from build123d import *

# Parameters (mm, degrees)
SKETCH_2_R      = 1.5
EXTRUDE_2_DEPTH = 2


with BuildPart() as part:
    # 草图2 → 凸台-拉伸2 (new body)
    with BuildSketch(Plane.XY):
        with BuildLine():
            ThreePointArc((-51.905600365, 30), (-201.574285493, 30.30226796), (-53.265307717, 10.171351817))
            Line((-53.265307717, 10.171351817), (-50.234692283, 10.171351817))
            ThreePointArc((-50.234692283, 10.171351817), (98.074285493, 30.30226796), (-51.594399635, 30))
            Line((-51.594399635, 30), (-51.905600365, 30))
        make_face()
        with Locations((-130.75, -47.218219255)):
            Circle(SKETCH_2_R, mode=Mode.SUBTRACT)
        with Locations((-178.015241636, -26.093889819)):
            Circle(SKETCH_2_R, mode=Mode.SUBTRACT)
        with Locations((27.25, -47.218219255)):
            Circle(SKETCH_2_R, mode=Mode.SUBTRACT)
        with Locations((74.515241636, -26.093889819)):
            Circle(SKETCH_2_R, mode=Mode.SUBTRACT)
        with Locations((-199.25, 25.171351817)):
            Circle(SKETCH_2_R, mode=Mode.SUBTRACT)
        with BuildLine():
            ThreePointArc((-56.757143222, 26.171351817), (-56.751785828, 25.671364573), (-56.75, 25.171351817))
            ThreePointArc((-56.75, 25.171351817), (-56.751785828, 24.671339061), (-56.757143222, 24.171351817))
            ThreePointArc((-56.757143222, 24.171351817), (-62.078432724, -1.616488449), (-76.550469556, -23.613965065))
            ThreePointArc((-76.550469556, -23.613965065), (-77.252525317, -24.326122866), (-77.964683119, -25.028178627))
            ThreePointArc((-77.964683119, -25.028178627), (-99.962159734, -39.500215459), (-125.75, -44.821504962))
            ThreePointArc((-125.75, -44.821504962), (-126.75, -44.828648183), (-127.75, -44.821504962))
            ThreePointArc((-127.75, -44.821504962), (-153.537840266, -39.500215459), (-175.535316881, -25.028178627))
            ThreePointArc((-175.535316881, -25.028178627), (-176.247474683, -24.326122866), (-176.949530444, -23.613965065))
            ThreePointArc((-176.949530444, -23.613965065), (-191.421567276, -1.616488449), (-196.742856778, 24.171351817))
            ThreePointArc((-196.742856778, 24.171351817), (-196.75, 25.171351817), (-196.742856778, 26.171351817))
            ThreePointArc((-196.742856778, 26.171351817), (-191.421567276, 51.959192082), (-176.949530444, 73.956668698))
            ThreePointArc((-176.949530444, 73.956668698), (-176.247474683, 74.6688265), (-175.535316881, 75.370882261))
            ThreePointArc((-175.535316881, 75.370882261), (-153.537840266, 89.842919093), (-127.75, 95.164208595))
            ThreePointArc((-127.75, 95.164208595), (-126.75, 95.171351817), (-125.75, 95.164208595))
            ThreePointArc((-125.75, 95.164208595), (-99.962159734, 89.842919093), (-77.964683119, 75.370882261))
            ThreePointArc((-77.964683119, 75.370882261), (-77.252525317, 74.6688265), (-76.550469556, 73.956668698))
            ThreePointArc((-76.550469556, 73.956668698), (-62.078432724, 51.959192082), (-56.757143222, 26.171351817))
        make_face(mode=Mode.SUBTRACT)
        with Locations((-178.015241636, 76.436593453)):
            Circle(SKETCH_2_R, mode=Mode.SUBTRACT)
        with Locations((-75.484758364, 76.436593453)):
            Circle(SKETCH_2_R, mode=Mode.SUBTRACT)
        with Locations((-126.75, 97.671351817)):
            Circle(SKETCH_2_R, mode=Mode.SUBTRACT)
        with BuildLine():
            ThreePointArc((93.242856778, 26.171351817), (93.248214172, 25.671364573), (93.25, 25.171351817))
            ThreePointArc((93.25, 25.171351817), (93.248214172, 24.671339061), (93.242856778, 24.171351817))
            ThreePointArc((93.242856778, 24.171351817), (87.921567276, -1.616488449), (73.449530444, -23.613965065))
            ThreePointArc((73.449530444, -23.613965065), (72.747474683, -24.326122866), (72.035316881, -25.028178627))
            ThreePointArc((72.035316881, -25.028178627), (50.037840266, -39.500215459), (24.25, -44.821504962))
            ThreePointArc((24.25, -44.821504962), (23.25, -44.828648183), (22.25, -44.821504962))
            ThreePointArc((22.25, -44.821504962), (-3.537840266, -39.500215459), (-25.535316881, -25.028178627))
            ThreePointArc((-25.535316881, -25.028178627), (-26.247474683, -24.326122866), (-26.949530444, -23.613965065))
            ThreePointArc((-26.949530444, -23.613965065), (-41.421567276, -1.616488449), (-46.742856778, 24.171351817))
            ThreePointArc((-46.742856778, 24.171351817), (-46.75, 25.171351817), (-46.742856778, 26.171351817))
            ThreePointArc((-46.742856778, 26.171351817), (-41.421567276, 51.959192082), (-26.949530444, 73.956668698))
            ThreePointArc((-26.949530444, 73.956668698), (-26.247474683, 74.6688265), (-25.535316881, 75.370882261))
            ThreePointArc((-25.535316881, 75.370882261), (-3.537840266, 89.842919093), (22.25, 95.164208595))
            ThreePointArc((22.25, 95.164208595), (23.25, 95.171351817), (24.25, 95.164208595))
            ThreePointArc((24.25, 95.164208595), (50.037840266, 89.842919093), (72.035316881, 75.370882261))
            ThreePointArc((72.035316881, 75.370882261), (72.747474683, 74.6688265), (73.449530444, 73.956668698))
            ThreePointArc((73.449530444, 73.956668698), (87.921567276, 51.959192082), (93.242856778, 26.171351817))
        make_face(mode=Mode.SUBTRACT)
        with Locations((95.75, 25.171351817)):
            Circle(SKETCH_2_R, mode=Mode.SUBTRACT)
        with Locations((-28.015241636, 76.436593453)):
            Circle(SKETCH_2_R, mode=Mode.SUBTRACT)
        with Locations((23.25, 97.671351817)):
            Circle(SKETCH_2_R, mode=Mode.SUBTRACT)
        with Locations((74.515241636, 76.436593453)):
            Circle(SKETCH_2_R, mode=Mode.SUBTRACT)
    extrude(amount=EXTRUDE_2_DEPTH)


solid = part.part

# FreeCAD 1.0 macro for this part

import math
import FreeCAD as App
import Part
import Sketcher
from FreeCAD import Vector
Q = App.Units.Quantity

doc = App.newDocument("Part")
body = doc.addObject("PartDesign::Body", "Body")

# Sketch on XY plane
sketch1 = doc.addObject("Sketcher::SketchObject", "Sketch")
body.addObject(sketch1)
sketch1.AttachmentSupport = (doc.XY_Plane, [""])
sketch1.MapMode = "FlatFace"
sketch1.addGeometry([
    Part.ArcOfCircle(Part.Circle(Vector(-126.75, 25.17, 0), Vector(0, 0, 1), 75), math.radians(4), math.radians(348)),  # 0
    Part.LineSegment(Vector(-53.27, 10.17, 0), Vector(-50.23, 10.17, 0)),  # 1
    Part.ArcOfCircle(Part.Circle(Vector(23.25, 25.17, 0), Vector(0, 0, 1), 75), math.radians(-168), math.radians(176)),  # 2
    Part.LineSegment(Vector(-51.59, 30, 0), Vector(-51.91, 30, 0)),  # 3
    Part.Circle(Vector(-130.75, -47.22, 0), Vector(0, 0, 1), 1.5),  # 4
    Part.Circle(Vector(-178.02, -26.09, 0), Vector(0, 0, 1), 1.5),  # 5
    Part.Circle(Vector(-199.25, 25.17, 0), Vector(0, 0, 1), 1.5),  # 6
    Part.ArcOfCircle(Part.Circle(Vector(-126.75, 25.17, 0), Vector(0, 0, 1), 70), math.radians(1), math.radians(44)),  # 7
    Part.ArcOfCircle(Part.Circle(Vector(-126.75, 25.17, 0), Vector(0, 0, 1), 70), math.radians(0), math.radians(0.82)),  # 8
    Part.ArcOfCircle(Part.Circle(Vector(-126.75, 25.17, 0), Vector(0, 0, 1), 70), math.radians(-0.82), math.radians(0)),  # 9
    Part.ArcOfCircle(Part.Circle(Vector(-126.75, 25.17, 0), Vector(0, 0, 1), 70), math.radians(-44), math.radians(-1)),  # 10
    Part.ArcOfCircle(Part.Circle(Vector(-126.75, 25.17, 0), Vector(0, 0, 1), 70), math.radians(-45.82), math.radians(-44.18)),  # 11
    Part.ArcOfCircle(Part.Circle(Vector(-126.75, 25.17, 0), Vector(0, 0, 1), 70), math.radians(-89), math.radians(-46)),  # 12
    Part.ArcOfCircle(Part.Circle(Vector(-126.75, 25.17, 0), Vector(0, 0, 1), 70), math.radians(-90.82), math.radians(-89.18)),  # 13
    Part.ArcOfCircle(Part.Circle(Vector(-126.75, 25.17, 0), Vector(0, 0, 1), 70), math.radians(-134), math.radians(-91)),  # 14
    Part.ArcOfCircle(Part.Circle(Vector(-126.75, 25.17, 0), Vector(0, 0, 1), 70), math.radians(-135.82), math.radians(-134.18)),  # 15
    Part.ArcOfCircle(Part.Circle(Vector(-126.75, 25.17, 0), Vector(0, 0, 1), 70), math.radians(-179), math.radians(-136)),  # 16
    Part.ArcOfCircle(Part.Circle(Vector(-126.75, 25.17, 0), Vector(0, 0, 1), 70), math.radians(179.18), math.radians(180.82)),  # 17
    Part.ArcOfCircle(Part.Circle(Vector(-126.75, 25.17, 0), Vector(0, 0, 1), 70), math.radians(136), math.radians(179)),  # 18
    Part.ArcOfCircle(Part.Circle(Vector(-126.75, 25.17, 0), Vector(0, 0, 1), 70), math.radians(134.18), math.radians(135.82)),  # 19
    Part.ArcOfCircle(Part.Circle(Vector(-126.75, 25.17, 0), Vector(0, 0, 1), 70), math.radians(91), math.radians(134)),  # 20
    Part.ArcOfCircle(Part.Circle(Vector(-126.75, 25.17, 0), Vector(0, 0, 1), 70), math.radians(89.18), math.radians(90.82)),  # 21
    Part.ArcOfCircle(Part.Circle(Vector(-126.75, 25.17, 0), Vector(0, 0, 1), 70), math.radians(46), math.radians(89)),  # 22
    Part.ArcOfCircle(Part.Circle(Vector(-126.75, 25.17, 0), Vector(0, 0, 1), 70), math.radians(44.18), math.radians(45.82)),  # 23
    Part.Circle(Vector(27.25, -47.22, 0), Vector(0, 0, 1), 1.5),  # 24
    Part.Circle(Vector(74.52, -26.09, 0), Vector(0, 0, 1), 1.5),  # 25
    Part.ArcOfCircle(Part.Circle(Vector(23.25, 25.17, 0), Vector(0, 0, 1), 70), math.radians(1), math.radians(44)),  # 26
    Part.ArcOfCircle(Part.Circle(Vector(23.25, 25.17, 0), Vector(0, 0, 1), 70), math.radians(0), math.radians(0.82)),  # 27
    Part.ArcOfCircle(Part.Circle(Vector(23.25, 25.17, 0), Vector(0, 0, 1), 70), math.radians(-0.82), math.radians(0)),  # 28
    Part.ArcOfCircle(Part.Circle(Vector(23.25, 25.17, 0), Vector(0, 0, 1), 70), math.radians(-44), math.radians(-1)),  # 29
    Part.ArcOfCircle(Part.Circle(Vector(23.25, 25.17, 0), Vector(0, 0, 1), 70), math.radians(-45.82), math.radians(-44.18)),  # 30
    Part.ArcOfCircle(Part.Circle(Vector(23.25, 25.17, 0), Vector(0, 0, 1), 70), math.radians(-89), math.radians(-46)),  # 31
    Part.ArcOfCircle(Part.Circle(Vector(23.25, 25.17, 0), Vector(0, 0, 1), 70), math.radians(-90.82), math.radians(-89.18)),  # 32
    Part.ArcOfCircle(Part.Circle(Vector(23.25, 25.17, 0), Vector(0, 0, 1), 70), math.radians(-134), math.radians(-91)),  # 33
    Part.ArcOfCircle(Part.Circle(Vector(23.25, 25.17, 0), Vector(0, 0, 1), 70), math.radians(-135.82), math.radians(-134.18)),  # 34
    Part.ArcOfCircle(Part.Circle(Vector(23.25, 25.17, 0), Vector(0, 0, 1), 70), math.radians(-179), math.radians(-136)),  # 35
    Part.ArcOfCircle(Part.Circle(Vector(23.25, 25.17, 0), Vector(0, 0, 1), 70), math.radians(179.18), math.radians(180.82)),  # 36
    Part.ArcOfCircle(Part.Circle(Vector(23.25, 25.17, 0), Vector(0, 0, 1), 70), math.radians(136), math.radians(179)),  # 37
    Part.ArcOfCircle(Part.Circle(Vector(23.25, 25.17, 0), Vector(0, 0, 1), 70), math.radians(134.18), math.radians(135.82)),  # 38
    Part.ArcOfCircle(Part.Circle(Vector(23.25, 25.17, 0), Vector(0, 0, 1), 70), math.radians(91), math.radians(134)),  # 39
    Part.ArcOfCircle(Part.Circle(Vector(23.25, 25.17, 0), Vector(0, 0, 1), 70), math.radians(89.18), math.radians(90.82)),  # 40
    Part.ArcOfCircle(Part.Circle(Vector(23.25, 25.17, 0), Vector(0, 0, 1), 70), math.radians(46), math.radians(89)),  # 41
    Part.ArcOfCircle(Part.Circle(Vector(23.25, 25.17, 0), Vector(0, 0, 1), 70), math.radians(44.18), math.radians(45.82)),  # 42
    Part.Circle(Vector(95.75, 25.17, 0), Vector(0, 0, 1), 1.5),  # 43
    Part.Circle(Vector(-178.02, 76.44, 0), Vector(0, 0, 1), 1.5),  # 44
    Part.Circle(Vector(-126.75, 97.67, 0), Vector(0, 0, 1), 1.5),  # 45
    Part.Circle(Vector(-75.48, 76.44, 0), Vector(0, 0, 1), 1.5),  # 46
    Part.Circle(Vector(-28.02, 76.44, 0), Vector(0, 0, 1), 1.5),  # 47
    Part.Circle(Vector(74.52, 76.44, 0), Vector(0, 0, 1), 1.5),  # 48
    Part.Circle(Vector(23.25, 97.67, 0), Vector(0, 0, 1), 1.5),  # 49
], False)
sketch1.addConstraint([
    Sketcher.Constraint("Coincident", 0, 2, 1, 1),
    Sketcher.Constraint("Coincident", 1, 2, 2, 1),
    Sketcher.Constraint("Coincident", 2, 2, 3, 1),
    Sketcher.Constraint("Coincident", 3, 2, 0, 1),
    Sketcher.Constraint("Tangent", 7, 1, 8, 2),
    Sketcher.Constraint("Tangent", 8, 1, 9, 2),
    Sketcher.Constraint("Tangent", 9, 1, 10, 2),
    Sketcher.Constraint("Tangent", 10, 1, 11, 2),
    Sketcher.Constraint("Tangent", 11, 1, 12, 2),
    Sketcher.Constraint("Tangent", 12, 1, 13, 2),
    Sketcher.Constraint("Tangent", 13, 1, 14, 2),
    Sketcher.Constraint("Tangent", 14, 1, 15, 2),
    Sketcher.Constraint("Tangent", 15, 1, 16, 2),
    Sketcher.Constraint("Tangent", 16, 1, 17, 2),
    Sketcher.Constraint("Tangent", 17, 1, 18, 2),
    Sketcher.Constraint("Tangent", 18, 1, 19, 2),
    Sketcher.Constraint("Tangent", 19, 1, 20, 2),
    Sketcher.Constraint("Tangent", 20, 1, 21, 2),
    Sketcher.Constraint("Tangent", 21, 1, 22, 2),
    Sketcher.Constraint("Tangent", 22, 1, 23, 2),
    Sketcher.Constraint("Tangent", 23, 1, 7, 2),
    Sketcher.Constraint("Tangent", 26, 1, 27, 2),
    Sketcher.Constraint("Tangent", 27, 1, 28, 2),
    Sketcher.Constraint("Tangent", 28, 1, 29, 2),
    Sketcher.Constraint("Tangent", 29, 1, 30, 2),
    Sketcher.Constraint("Tangent", 30, 1, 31, 2),
    Sketcher.Constraint("Tangent", 31, 1, 32, 2),
    Sketcher.Constraint("Tangent", 32, 1, 33, 2),
    Sketcher.Constraint("Tangent", 33, 1, 34, 2),
    Sketcher.Constraint("Tangent", 34, 1, 35, 2),
    Sketcher.Constraint("Tangent", 35, 1, 36, 2),
    Sketcher.Constraint("Tangent", 36, 1, 37, 2),
    Sketcher.Constraint("Tangent", 37, 1, 38, 2),
    Sketcher.Constraint("Tangent", 38, 1, 39, 2),
    Sketcher.Constraint("Tangent", 39, 1, 40, 2),
    Sketcher.Constraint("Tangent", 40, 1, 41, 2),
    Sketcher.Constraint("Tangent", 41, 1, 42, 2),
    Sketcher.Constraint("Tangent", 42, 1, 26, 2),
    Sketcher.Constraint("Horizontal", 1),
    Sketcher.Constraint("Horizontal", 3),
    Sketcher.Constraint("Coincident", 7, 3, 0, 3),
    Sketcher.Constraint("Coincident", 10, 3, 0, 3),
    Sketcher.Constraint("Coincident", 12, 3, 0, 3),
    Sketcher.Constraint("Coincident", 14, 3, 0, 3),
    Sketcher.Constraint("Coincident", 16, 3, 0, 3),
    Sketcher.Constraint("Coincident", 18, 3, 0, 3),
    Sketcher.Constraint("Coincident", 20, 3, 0, 3),
    Sketcher.Constraint("Coincident", 26, 3, 2, 3),
    Sketcher.Constraint("Coincident", 29, 3, 2, 3),
    Sketcher.Constraint("Coincident", 31, 3, 2, 3),
    Sketcher.Constraint("Coincident", 33, 3, 2, 3),
    Sketcher.Constraint("Coincident", 35, 3, 2, 3),
    Sketcher.Constraint("Coincident", 37, 3, 2, 3),
    Sketcher.Constraint("Coincident", 39, 3, 2, 3),
    Sketcher.Constraint("Equal", 0, 2),
    Sketcher.Constraint("Equal", 4, 5),
    Sketcher.Constraint("Equal", 5, 6),
    Sketcher.Constraint("Equal", 8, 9),
    Sketcher.Constraint("Equal", 17, 21),
    Sketcher.Constraint("Equal", 6, 24),
    Sketcher.Constraint("Equal", 24, 25),
    Sketcher.Constraint("Equal", 23, 26),
    Sketcher.Constraint("Equal", 9, 27),
    Sketcher.Constraint("Equal", 36, 40),
    Sketcher.Constraint("Equal", 25, 43),
    Sketcher.Constraint("Equal", 43, 44),
    Sketcher.Constraint("Equal", 44, 45),
    Sketcher.Constraint("Equal", 45, 46),
    Sketcher.Constraint("Equal", 46, 47),
    Sketcher.Constraint("Equal", 47, 48),
    Sketcher.Constraint("Equal", 48, 49),
    Sketcher.Constraint("Horizontal", 0, 3, 2, 3),
    Sketcher.Constraint("Horizontal", 2, 3, 6, 3),
    Sketcher.Constraint("Horizontal", 4, 3, 24, 3),
    Sketcher.Constraint("Horizontal", 5, 3, 25, 3),
    Sketcher.Constraint("Horizontal", 42, 3, 43, 3),
    Sketcher.Constraint("Horizontal", 44, 3, 46, 3),
    Sketcher.Constraint("Horizontal", 46, 3, 47, 3),
    Sketcher.Constraint("Horizontal", 47, 3, 48, 3),
    Sketcher.Constraint("Horizontal", 45, 3, 49, 3),
    Sketcher.Constraint("Horizontal", 43, 3, 8, 1),
    Sketcher.Constraint("Horizontal", 12, 1, 13, 1),
    Sketcher.Constraint("Horizontal", 11, 1, 14, 1),
    Sketcher.Constraint("Horizontal", 10, 1, 15, 1),
    Sketcher.Constraint("Horizontal", 9, 1, 16, 1),
    Sketcher.Constraint("Horizontal", 7, 1, 17, 1),
    Sketcher.Constraint("Horizontal", 20, 1, 21, 1),
    Sketcher.Constraint("Horizontal", 19, 1, 22, 1),
    Sketcher.Constraint("Horizontal", 18, 1, 23, 1),
    Sketcher.Constraint("Horizontal", 17, 1, 26, 1),
    Sketcher.Constraint("Horizontal", 8, 1, 27, 1),
    Sketcher.Constraint("Horizontal", 16, 1, 28, 1),
    Sketcher.Constraint("Horizontal", 15, 1, 29, 1),
    Sketcher.Constraint("Horizontal", 14, 1, 30, 1),
    Sketcher.Constraint("Horizontal", 13, 1, 31, 1),
    Sketcher.Constraint("Horizontal", 31, 1, 32, 1),
    Sketcher.Constraint("Horizontal", 30, 1, 33, 1),
    Sketcher.Constraint("Horizontal", 29, 1, 34, 1),
    Sketcher.Constraint("Horizontal", 28, 1, 35, 1),
    Sketcher.Constraint("Horizontal", 26, 1, 36, 1),
    Sketcher.Constraint("Horizontal", 23, 1, 37, 1),
    Sketcher.Constraint("Horizontal", 22, 1, 38, 1),
    Sketcher.Constraint("Horizontal", 21, 1, 39, 1),
    Sketcher.Constraint("Horizontal", 39, 1, 40, 1),
    Sketcher.Constraint("Horizontal", 38, 1, 41, 1),
    Sketcher.Constraint("Horizontal", 37, 1, 42, 1),
    Sketcher.Constraint("Vertical", 5, 3, 44, 3),
    Sketcher.Constraint("Vertical", 23, 3, 45, 3),
    Sketcher.Constraint("Vertical", 25, 3, 48, 3),
    Sketcher.Constraint("Vertical", 42, 3, 49, 3),
    Sketcher.Constraint("Vertical", 7, 1, 9, 1),
    Sketcher.Constraint("Vertical", 15, 1, 18, 1),
    Sketcher.Constraint("Vertical", 14, 1, 19, 1),
    Sketcher.Constraint("Vertical", 13, 1, 20, 1),
    Sketcher.Constraint("Diameter", 4, Q("3 mm")),
    Sketcher.Constraint("Radius", 0, Q("75 mm")),
    Sketcher.Constraint("Radius", 7, Q("70 mm")),
    Sketcher.Constraint("DistanceY", -1, 1, 2, 2, Q("30 mm")),
    Sketcher.Constraint("DistanceX", 0, 3, -1, 1, Q("126.75 mm")),
    Sketcher.Constraint("DistanceX", -1, 1, 2, 3, Q("23.25 mm")),
    Sketcher.Constraint("DistanceX", 4, 3, -1, 1, Q("130.75 mm")),
    Sketcher.Constraint("DistanceX", 6, 3, -1, 1, Q("199.25 mm")),
    Sketcher.Constraint("DistanceX", -1, 1, 24, 3, Q("27.25 mm")),
    Sketcher.Constraint("DistanceX", -1, 1, 43, 3, Q("95.75 mm")),
    Sketcher.Constraint("DistanceX", 12, 1, -1, 1, Q("125.75 mm")),
    Sketcher.Constraint("DistanceX", 3, 2, 3, 1, Q("0.311201 mm")),
    Sketcher.Constraint("DistanceX", 1, 1, 1, 2, Q("3.030615 mm")),
    Sketcher.Constraint("DistanceY", 4, 3, -1, 1, Q("47.218219 mm")),
    Sketcher.Constraint("DistanceX", 5, 3, -1, 1, Q("178.015242 mm")),
    Sketcher.Constraint("DistanceY", 5, 3, -1, 1, Q("26.09389 mm")),
    Sketcher.Constraint("DistanceX", -1, 1, 25, 3, Q("74.515242 mm")),
    Sketcher.Constraint("DistanceY", -1, 1, 45, 3, Q("97.671352 mm")),
    Sketcher.Constraint("DistanceX", 46, 3, -1, 1, Q("75.484758 mm")),
    Sketcher.Constraint("DistanceX", 47, 3, -1, 1, Q("28.015242 mm")),
    Sketcher.Constraint("DistanceY", -1, 1, 7, 1, Q("26.171352 mm")),
    Sketcher.Constraint("DistanceX", 10, 1, -1, 1, Q("76.55047 mm")),
    Sketcher.Constraint("DistanceY", 11, 1, -1, 1, Q("25.028179 mm")),
    Sketcher.Constraint("DistanceY", -1, 1, 44, 3, Q("76.436593 mm")),
])
pad1 = doc.addObject("PartDesign::Pad", "Pad")
body.addObject(pad1)
pad1.Profile = sketch1
pad1.Length = 2

doc.recompute()
